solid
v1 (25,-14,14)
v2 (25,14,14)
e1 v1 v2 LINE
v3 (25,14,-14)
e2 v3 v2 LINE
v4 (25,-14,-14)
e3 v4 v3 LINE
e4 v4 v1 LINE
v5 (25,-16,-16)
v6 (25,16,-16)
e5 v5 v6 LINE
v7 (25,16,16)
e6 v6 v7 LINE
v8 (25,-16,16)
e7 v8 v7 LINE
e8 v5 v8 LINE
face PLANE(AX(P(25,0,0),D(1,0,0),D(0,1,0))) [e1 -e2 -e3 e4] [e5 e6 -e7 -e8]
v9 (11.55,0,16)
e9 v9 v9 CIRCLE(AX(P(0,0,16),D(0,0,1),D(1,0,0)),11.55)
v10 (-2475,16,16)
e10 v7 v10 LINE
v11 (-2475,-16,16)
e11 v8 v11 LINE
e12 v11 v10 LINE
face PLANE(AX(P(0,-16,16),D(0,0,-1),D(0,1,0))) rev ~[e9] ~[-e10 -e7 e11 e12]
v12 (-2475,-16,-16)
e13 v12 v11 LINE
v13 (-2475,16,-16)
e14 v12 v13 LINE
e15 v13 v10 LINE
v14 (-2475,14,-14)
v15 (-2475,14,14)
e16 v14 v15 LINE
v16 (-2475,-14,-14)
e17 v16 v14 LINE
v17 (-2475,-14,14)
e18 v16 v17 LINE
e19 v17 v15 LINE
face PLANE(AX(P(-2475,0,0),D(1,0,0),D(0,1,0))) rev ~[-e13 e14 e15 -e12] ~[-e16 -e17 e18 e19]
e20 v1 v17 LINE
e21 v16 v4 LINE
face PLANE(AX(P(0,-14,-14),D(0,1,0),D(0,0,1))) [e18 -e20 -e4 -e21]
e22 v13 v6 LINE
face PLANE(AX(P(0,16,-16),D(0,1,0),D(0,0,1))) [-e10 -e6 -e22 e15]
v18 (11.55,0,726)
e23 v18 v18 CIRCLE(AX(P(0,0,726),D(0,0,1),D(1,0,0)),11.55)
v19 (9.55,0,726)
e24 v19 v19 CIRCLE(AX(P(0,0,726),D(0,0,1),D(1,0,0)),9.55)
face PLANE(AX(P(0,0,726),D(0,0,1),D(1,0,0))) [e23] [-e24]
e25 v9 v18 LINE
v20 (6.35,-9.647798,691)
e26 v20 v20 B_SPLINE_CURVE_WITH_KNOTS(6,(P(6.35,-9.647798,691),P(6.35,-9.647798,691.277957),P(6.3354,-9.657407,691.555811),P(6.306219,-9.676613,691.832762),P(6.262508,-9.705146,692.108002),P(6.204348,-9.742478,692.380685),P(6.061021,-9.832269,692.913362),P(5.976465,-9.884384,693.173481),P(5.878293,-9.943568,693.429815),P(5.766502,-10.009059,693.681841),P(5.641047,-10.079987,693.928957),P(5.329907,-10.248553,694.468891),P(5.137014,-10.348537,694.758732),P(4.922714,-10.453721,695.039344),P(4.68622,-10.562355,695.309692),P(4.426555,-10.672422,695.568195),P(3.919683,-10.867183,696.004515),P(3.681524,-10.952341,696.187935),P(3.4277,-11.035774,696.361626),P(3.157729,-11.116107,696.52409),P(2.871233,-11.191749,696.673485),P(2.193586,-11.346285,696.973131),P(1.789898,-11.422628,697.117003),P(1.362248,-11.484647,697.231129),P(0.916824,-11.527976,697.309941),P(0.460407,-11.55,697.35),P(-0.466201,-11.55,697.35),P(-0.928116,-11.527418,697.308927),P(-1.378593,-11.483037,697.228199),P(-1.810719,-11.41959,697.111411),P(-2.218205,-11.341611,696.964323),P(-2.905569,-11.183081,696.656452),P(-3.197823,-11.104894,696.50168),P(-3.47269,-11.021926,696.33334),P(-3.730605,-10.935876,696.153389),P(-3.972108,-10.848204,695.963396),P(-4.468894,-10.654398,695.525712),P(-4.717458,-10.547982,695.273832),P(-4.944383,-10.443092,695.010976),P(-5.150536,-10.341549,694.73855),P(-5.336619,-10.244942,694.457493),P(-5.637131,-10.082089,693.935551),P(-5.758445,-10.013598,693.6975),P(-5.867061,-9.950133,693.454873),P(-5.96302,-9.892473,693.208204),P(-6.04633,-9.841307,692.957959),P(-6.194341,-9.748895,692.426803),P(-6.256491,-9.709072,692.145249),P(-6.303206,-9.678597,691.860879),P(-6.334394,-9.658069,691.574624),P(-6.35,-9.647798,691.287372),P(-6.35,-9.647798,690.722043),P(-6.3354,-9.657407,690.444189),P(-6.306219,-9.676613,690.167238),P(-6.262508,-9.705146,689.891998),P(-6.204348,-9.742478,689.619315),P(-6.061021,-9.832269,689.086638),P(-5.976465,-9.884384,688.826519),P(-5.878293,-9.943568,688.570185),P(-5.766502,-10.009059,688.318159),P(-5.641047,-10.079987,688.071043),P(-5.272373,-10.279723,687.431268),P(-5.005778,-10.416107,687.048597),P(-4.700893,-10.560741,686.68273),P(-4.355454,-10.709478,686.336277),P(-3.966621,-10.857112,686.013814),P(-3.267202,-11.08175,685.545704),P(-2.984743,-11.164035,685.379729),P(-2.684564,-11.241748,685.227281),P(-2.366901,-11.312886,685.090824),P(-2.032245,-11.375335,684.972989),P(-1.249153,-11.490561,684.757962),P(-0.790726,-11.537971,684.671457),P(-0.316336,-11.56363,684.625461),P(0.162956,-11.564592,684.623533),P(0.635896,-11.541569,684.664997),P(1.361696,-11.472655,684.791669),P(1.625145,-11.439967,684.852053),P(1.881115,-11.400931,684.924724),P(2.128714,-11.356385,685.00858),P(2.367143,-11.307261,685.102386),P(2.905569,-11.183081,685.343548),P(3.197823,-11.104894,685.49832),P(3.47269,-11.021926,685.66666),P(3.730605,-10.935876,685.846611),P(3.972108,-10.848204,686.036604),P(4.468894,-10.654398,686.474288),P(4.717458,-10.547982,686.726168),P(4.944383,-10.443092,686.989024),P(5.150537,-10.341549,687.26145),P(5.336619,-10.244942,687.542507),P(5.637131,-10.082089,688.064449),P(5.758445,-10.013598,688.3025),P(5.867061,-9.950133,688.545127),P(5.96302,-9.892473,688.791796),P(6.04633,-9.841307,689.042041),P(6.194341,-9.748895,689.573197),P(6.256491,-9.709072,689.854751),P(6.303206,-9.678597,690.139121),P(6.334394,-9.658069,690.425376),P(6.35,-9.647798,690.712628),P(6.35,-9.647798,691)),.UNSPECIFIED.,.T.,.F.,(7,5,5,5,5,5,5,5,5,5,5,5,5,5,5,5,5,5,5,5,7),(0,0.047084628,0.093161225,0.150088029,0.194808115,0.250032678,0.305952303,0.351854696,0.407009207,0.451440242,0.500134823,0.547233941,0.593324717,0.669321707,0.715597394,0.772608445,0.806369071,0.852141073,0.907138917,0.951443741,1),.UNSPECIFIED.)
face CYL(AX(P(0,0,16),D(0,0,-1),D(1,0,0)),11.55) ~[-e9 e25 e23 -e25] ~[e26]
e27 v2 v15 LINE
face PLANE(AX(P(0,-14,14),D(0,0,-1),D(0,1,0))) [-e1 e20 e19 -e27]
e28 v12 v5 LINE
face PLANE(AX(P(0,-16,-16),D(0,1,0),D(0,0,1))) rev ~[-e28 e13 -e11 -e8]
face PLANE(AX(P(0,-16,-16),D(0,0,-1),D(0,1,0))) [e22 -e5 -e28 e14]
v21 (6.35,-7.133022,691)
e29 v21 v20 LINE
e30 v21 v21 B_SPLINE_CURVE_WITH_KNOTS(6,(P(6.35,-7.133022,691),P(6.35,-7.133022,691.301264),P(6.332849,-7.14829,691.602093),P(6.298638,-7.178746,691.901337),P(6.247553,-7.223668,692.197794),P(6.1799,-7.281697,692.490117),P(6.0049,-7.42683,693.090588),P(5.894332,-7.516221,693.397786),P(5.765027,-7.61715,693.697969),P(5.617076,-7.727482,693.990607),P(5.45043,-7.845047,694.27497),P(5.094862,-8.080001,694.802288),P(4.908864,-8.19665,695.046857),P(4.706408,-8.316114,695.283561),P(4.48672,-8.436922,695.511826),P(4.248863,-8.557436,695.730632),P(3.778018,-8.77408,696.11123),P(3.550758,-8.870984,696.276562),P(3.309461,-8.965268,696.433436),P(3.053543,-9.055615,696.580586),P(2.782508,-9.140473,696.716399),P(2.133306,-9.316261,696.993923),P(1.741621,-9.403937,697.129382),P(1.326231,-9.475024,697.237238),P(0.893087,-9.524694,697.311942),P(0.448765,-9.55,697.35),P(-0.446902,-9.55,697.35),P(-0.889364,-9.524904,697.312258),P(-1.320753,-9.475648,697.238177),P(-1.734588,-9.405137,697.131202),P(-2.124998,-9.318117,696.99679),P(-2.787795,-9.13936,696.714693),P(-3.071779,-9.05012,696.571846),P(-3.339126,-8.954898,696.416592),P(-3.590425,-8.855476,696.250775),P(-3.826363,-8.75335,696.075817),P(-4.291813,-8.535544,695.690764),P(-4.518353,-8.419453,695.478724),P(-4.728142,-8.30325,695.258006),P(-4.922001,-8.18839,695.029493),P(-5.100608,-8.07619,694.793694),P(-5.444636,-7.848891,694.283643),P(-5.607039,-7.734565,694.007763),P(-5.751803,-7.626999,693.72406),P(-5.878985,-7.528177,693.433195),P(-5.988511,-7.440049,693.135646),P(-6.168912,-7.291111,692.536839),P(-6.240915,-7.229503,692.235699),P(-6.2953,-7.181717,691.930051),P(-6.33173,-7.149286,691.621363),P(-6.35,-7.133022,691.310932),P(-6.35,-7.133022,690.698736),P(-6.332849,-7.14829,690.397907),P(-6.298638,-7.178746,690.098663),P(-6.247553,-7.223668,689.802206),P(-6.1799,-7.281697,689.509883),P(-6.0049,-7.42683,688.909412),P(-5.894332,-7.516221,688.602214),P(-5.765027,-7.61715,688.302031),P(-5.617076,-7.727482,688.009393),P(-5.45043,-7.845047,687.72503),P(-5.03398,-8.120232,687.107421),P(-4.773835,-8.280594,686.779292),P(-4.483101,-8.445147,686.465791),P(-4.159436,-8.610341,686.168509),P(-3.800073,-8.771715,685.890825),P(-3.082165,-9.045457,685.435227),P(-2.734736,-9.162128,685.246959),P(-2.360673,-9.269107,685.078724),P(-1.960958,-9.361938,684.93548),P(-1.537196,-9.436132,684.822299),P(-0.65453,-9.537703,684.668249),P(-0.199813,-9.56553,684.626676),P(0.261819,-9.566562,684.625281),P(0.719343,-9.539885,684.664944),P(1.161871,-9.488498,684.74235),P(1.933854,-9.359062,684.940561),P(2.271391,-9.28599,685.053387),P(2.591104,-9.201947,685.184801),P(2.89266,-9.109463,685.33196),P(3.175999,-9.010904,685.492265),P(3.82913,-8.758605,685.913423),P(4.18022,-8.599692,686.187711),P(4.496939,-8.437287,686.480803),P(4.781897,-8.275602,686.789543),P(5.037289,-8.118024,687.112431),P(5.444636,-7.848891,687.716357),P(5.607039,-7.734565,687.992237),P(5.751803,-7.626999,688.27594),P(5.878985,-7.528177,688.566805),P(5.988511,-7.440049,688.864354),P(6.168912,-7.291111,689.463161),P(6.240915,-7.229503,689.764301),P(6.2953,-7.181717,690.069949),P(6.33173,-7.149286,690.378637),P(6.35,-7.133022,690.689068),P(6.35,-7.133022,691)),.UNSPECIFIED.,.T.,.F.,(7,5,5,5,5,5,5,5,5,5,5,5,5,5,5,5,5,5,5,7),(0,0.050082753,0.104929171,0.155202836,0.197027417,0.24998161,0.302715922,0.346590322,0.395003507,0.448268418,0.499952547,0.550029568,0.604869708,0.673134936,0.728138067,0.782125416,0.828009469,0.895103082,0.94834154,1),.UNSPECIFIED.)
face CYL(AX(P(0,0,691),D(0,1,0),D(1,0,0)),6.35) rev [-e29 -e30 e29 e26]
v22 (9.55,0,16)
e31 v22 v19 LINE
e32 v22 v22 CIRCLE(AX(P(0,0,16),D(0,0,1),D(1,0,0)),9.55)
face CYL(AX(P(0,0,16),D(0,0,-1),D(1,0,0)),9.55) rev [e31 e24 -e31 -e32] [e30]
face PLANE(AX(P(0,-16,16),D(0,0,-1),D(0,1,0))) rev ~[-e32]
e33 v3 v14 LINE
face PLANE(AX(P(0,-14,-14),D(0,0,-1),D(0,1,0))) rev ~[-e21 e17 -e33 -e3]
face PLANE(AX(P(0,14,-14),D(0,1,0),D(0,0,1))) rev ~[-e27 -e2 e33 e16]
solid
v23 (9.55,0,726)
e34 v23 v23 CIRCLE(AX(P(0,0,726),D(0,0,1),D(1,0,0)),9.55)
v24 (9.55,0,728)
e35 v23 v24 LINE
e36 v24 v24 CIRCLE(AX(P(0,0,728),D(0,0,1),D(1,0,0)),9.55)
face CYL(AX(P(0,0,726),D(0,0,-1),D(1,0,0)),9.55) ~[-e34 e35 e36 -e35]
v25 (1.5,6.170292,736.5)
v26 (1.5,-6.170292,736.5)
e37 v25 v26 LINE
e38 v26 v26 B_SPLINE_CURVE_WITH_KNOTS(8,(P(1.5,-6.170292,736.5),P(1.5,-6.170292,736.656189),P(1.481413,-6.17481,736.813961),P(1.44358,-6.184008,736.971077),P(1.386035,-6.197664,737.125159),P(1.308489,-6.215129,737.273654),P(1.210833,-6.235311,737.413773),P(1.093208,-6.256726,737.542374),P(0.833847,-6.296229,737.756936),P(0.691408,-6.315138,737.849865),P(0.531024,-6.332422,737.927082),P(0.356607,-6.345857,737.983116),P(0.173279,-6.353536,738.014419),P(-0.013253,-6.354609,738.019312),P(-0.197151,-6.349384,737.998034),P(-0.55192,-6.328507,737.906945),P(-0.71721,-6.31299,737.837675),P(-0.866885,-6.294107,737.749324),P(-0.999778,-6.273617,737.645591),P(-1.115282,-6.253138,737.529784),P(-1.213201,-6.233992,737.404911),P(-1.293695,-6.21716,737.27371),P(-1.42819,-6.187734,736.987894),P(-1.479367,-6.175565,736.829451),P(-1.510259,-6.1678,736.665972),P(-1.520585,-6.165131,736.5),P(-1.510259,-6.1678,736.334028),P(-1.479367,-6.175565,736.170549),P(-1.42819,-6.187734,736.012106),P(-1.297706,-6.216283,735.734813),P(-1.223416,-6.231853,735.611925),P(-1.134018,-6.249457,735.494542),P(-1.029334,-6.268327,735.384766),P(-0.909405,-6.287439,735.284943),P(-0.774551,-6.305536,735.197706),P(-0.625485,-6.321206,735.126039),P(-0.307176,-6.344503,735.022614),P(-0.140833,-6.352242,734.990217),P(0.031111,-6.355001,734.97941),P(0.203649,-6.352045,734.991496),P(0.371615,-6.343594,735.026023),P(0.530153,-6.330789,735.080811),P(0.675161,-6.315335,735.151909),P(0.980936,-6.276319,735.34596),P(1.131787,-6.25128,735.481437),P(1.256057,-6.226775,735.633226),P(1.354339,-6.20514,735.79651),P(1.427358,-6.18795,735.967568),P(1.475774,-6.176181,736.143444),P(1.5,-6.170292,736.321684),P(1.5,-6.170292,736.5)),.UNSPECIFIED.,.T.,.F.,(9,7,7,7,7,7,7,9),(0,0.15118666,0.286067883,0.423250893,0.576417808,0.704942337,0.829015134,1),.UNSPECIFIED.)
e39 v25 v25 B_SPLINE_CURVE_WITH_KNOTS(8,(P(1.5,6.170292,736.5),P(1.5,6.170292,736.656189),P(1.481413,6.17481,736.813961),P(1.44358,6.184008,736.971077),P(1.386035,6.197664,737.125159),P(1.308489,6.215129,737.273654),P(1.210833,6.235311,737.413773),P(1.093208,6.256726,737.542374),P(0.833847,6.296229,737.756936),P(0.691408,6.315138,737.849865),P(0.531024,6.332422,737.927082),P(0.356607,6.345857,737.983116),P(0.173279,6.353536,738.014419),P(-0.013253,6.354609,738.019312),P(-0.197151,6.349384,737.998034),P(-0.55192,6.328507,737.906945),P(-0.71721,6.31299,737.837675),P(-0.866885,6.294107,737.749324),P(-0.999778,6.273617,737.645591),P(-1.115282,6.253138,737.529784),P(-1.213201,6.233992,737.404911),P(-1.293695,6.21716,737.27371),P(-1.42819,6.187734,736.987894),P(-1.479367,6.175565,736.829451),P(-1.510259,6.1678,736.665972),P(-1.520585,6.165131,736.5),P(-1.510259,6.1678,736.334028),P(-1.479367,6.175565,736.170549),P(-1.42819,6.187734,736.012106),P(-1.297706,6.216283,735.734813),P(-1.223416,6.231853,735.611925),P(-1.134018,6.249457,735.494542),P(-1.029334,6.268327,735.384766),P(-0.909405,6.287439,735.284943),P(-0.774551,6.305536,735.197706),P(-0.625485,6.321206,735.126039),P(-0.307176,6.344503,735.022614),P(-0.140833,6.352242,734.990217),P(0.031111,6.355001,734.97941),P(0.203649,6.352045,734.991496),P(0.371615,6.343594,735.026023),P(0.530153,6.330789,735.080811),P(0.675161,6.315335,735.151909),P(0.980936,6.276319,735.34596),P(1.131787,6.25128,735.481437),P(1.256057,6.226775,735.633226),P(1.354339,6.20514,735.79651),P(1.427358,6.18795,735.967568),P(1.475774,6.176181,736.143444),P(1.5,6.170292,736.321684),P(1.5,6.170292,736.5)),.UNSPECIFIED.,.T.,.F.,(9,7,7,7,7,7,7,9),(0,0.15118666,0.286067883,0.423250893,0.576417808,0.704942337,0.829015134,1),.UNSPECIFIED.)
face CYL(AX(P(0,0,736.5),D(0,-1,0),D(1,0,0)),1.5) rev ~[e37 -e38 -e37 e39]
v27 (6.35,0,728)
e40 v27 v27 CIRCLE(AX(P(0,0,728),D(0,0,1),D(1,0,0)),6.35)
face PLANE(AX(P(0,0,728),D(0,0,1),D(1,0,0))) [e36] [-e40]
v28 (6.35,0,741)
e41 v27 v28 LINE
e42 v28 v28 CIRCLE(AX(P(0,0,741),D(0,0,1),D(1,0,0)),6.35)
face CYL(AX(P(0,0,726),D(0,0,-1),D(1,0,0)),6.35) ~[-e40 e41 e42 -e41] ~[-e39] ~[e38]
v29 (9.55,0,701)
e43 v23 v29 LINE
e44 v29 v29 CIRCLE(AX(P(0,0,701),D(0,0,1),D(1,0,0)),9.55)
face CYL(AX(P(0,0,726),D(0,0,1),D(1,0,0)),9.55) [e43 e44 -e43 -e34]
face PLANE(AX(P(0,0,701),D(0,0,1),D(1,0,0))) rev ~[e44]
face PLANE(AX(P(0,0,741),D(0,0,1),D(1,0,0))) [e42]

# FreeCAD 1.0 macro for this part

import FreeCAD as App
import Part
import Sketcher

V = App.Vector


def add_polygon(sketch, points):
    """Adds a closed chain of lines whose ends are joined by coincident constraints."""
    first, n = sketch.GeometryCount, len(points)
    for a, b in zip(points, points[1:] + points[:1]):
        sketch.addGeometry(Part.LineSegment(App.Vector(*a, 0), App.Vector(*b, 0)), False)
    for i in range(n):
        sketch.addConstraint(Sketcher.Constraint("Coincident", first + i, 2, first + (i + 1) % n, 1))

doc = App.newDocument("Part")
body = doc.addObject("PartDesign::Body", "Body")

# Sketch on YZ plane
sketch1 = body.newObject("Sketcher::SketchObject", "Sketch")
sketch1.AttachmentSupport = (doc.getObject("YZ_Plane"), [""])
sketch1.MapMode = "FlatFace"
add_polygon(sketch1, [(-16, 16), (-16, -16), (16, -16), (16, 16)])  # lines 0-3
add_polygon(sketch1, [(14, -14), (-14, -14), (-14, 14), (14, 14)])  # lines 4-7
sketch1.addConstraint([
    Sketcher.Constraint("Vertical", 0),
    Sketcher.Constraint("Horizontal", 1),
    Sketcher.Constraint("Vertical", 2),
    Sketcher.Constraint("Horizontal", 3),
    Sketcher.Constraint("Horizontal", 4),
    Sketcher.Constraint("Vertical", 5),
    Sketcher.Constraint("Horizontal", 6),
    Sketcher.Constraint("Vertical", 7),
    Sketcher.Constraint("Symmetric", 0, 2, 2, 2, -1, 1),
    Sketcher.Constraint("Symmetric", 4, 2, 6, 2, -1, 1),
    Sketcher.Constraint("Equal", 3, 0),
    Sketcher.Constraint("Equal", 6, 5),
    Sketcher.Constraint("DistanceX", 1, 1, 1, 2, 32.0),
    Sketcher.Constraint("DistanceX", 4, 2, 4, 1, 28.0),
])
pad1 = body.newObject("PartDesign::Pad", "Pad")
pad1.Profile = sketch1
pad1.Length = 25

# Sketch on YZ plane
sketch2 = body.newObject("Sketcher::SketchObject", "Sketch001")
sketch2.AttachmentSupport = (doc.getObject("YZ_Plane"), [""])
sketch2.MapMode = "FlatFace"
add_polygon(sketch2, [(-16, 16), (-16, -16), (16, -16), (16, 16)])  # lines 0-3
add_polygon(sketch2, [(14, -14), (-14, -14), (-14, 14), (14, 14)])  # lines 4-7
sketch2.addConstraint([
    Sketcher.Constraint("Vertical", 0),
    Sketcher.Constraint("Horizontal", 1),
    Sketcher.Constraint("Vertical", 2),
    Sketcher.Constraint("Horizontal", 3),
    Sketcher.Constraint("Horizontal", 4),
    Sketcher.Constraint("Vertical", 5),
    Sketcher.Constraint("Horizontal", 6),
    Sketcher.Constraint("Vertical", 7),
    Sketcher.Constraint("Symmetric", 0, 2, 2, 2, -1, 1),
    Sketcher.Constraint("Symmetric", 4, 2, 6, 2, -1, 1),
    Sketcher.Constraint("Equal", 3, 0),
    Sketcher.Constraint("Equal", 6, 5),
    Sketcher.Constraint("DistanceX", 1, 1, 1, 2, 32.0),
    Sketcher.Constraint("DistanceX", 4, 2, 4, 1, 28.0),
])
pad2 = body.newObject("PartDesign::Pad", "Pad001")
pad2.Profile = sketch2
pad2.Length = 2475
pad2.Reversed = True

# Sketch on XY plane
sketch3 = body.newObject("Sketcher::SketchObject", "Sketch002")
sketch3.AttachmentSupport = (doc.getObject("XY_Plane"), [""])
sketch3.MapMode = "FlatFace"
sketch3.AttachmentOffset = App.Placement(V(0, 0, 16), App.Rotation())
sketch3.addGeometry([
    Part.Circle(V(0, 0, 0), V(0, 0, 1), 11.55),
    Part.Circle(V(0, 0, 0), V(0, 0, 1), 9.55),
], False)
sketch3.addConstraint([
    Sketcher.Constraint("Coincident", 0, 3, -1, 1),
    Sketcher.Constraint("Coincident", 1, 3, -1, 1),
    Sketcher.Constraint("Diameter", 0, 23.1),
    Sketcher.Constraint("Diameter", 1, 19.1),
])
pad3 = body.newObject("PartDesign::Pad", "Pad002")
pad3.Profile = sketch3
pad3.Length = 710

# Sketch on XZ plane
sketch4 = body.newObject("Sketcher::SketchObject", "Sketch003")
sketch4.AttachmentSupport = (doc.getObject("XZ_Plane"), [""])
sketch4.MapMode = "FlatFace"
sketch4.addGeometry(Part.Circle(V(0, 691, 0), V(0, 0, 1), 6.35), False)
sketch4.addConstraint([
    Sketcher.Constraint("PointOnObject", 0, 3, -2),
    Sketcher.Constraint("Diameter", 0, 12.7),
    Sketcher.Constraint("DistanceY", -1, 1, 0, 3, 691.0),
])
pocket1 = body.newObject("PartDesign::Pocket", "Pocket")
pocket1.Profile = sketch4
pocket1.Length = 25
pocket1.Reversed = True
body2 = doc.addObject("PartDesign::Body", "Body001")

# Sketch on XY plane
sketch5 = body2.newObject("Sketcher::SketchObject", "Sketch004")
sketch5.AttachmentSupport = (doc.getObject("XY_Plane001"), [""])
sketch5.MapMode = "FlatFace"
sketch5.AttachmentOffset = App.Placement(V(0, 0, 726), App.Rotation())
sketch5.addGeometry(Part.Circle(V(0, 0, 0), V(0, 0, 1), 9.55), False)
sketch5.addConstraint([
    Sketcher.Constraint("Coincident", 0, 3, -1, 1),
    Sketcher.Constraint("Diameter", 0, 19.1),
])
pad4 = body2.newObject("PartDesign::Pad", "Pad003")
pad4.Profile = sketch5
pad4.Length = 25
pad4.Reversed = True

# Sketch on XY plane
sketch6 = body2.newObject("Sketcher::SketchObject", "Sketch005")
sketch6.AttachmentSupport = (doc.getObject("XY_Plane001"), [""])
sketch6.MapMode = "FlatFace"
sketch6.AttachmentOffset = App.Placement(V(0, 0, 726), App.Rotation())
sketch6.addGeometry(Part.Circle(V(0, 0, 0), V(0, 0, 1), 6.35), False)
sketch6.addConstraint([
    Sketcher.Constraint("Coincident", 0, 3, -1, 1),
    Sketcher.Constraint("Diameter", 0, 12.7),
])
pad5 = body2.newObject("PartDesign::Pad", "Pad004")
pad5.Profile = sketch6
pad5.Length = 15

# Sketch on XZ plane
sketch7 = body2.newObject("Sketcher::SketchObject", "Sketch006")
sketch7.AttachmentSupport = (doc.getObject("XZ_Plane001"), [""])
sketch7.MapMode = "FlatFace"
sketch7.addGeometry(Part.Circle(V(0, 736.5, 0), V(0, 0, 1), 1.5), False)
sketch7.addConstraint([
    Sketcher.Constraint("PointOnObject", 0, 3, -2),
    Sketcher.Constraint("Diameter", 0, 3.0),
    Sketcher.Constraint("DistanceY", -1, 1, 0, 3, 736.5),
])
pocket2 = body2.newObject("PartDesign::Pocket", "Pocket001")
pocket2.Profile = sketch7
pocket2.Length = 13
pocket2.Midplane = True

# Sketch on XY plane
sketch8 = body2.newObject("Sketcher::SketchObject", "Sketch007")
sketch8.AttachmentSupport = (doc.getObject("XY_Plane001"), [""])
sketch8.MapMode = "FlatFace"
sketch8.AttachmentOffset = App.Placement(V(0, 0, 726), App.Rotation())
sketch8.addGeometry([
    Part.Circle(V(0, 0, 0), V(0, 0, 1), 9.55),
    Part.Circle(V(0, 0, 0), V(0, 0, 1), 6.35),
], False)
sketch8.addConstraint([
    Sketcher.Constraint("Coincident", 0, 3, -1, 1),
    Sketcher.Constraint("Coincident", 1, 3, -1, 1),
    Sketcher.Constraint("Diameter", 0, 19.1),
    Sketcher.Constraint("Diameter", 1, 12.7),
])
pad6 = body2.newObject("PartDesign::Pad", "Pad005")
pad6.Profile = sketch8
pad6.Length = 2

doc.recompute()
